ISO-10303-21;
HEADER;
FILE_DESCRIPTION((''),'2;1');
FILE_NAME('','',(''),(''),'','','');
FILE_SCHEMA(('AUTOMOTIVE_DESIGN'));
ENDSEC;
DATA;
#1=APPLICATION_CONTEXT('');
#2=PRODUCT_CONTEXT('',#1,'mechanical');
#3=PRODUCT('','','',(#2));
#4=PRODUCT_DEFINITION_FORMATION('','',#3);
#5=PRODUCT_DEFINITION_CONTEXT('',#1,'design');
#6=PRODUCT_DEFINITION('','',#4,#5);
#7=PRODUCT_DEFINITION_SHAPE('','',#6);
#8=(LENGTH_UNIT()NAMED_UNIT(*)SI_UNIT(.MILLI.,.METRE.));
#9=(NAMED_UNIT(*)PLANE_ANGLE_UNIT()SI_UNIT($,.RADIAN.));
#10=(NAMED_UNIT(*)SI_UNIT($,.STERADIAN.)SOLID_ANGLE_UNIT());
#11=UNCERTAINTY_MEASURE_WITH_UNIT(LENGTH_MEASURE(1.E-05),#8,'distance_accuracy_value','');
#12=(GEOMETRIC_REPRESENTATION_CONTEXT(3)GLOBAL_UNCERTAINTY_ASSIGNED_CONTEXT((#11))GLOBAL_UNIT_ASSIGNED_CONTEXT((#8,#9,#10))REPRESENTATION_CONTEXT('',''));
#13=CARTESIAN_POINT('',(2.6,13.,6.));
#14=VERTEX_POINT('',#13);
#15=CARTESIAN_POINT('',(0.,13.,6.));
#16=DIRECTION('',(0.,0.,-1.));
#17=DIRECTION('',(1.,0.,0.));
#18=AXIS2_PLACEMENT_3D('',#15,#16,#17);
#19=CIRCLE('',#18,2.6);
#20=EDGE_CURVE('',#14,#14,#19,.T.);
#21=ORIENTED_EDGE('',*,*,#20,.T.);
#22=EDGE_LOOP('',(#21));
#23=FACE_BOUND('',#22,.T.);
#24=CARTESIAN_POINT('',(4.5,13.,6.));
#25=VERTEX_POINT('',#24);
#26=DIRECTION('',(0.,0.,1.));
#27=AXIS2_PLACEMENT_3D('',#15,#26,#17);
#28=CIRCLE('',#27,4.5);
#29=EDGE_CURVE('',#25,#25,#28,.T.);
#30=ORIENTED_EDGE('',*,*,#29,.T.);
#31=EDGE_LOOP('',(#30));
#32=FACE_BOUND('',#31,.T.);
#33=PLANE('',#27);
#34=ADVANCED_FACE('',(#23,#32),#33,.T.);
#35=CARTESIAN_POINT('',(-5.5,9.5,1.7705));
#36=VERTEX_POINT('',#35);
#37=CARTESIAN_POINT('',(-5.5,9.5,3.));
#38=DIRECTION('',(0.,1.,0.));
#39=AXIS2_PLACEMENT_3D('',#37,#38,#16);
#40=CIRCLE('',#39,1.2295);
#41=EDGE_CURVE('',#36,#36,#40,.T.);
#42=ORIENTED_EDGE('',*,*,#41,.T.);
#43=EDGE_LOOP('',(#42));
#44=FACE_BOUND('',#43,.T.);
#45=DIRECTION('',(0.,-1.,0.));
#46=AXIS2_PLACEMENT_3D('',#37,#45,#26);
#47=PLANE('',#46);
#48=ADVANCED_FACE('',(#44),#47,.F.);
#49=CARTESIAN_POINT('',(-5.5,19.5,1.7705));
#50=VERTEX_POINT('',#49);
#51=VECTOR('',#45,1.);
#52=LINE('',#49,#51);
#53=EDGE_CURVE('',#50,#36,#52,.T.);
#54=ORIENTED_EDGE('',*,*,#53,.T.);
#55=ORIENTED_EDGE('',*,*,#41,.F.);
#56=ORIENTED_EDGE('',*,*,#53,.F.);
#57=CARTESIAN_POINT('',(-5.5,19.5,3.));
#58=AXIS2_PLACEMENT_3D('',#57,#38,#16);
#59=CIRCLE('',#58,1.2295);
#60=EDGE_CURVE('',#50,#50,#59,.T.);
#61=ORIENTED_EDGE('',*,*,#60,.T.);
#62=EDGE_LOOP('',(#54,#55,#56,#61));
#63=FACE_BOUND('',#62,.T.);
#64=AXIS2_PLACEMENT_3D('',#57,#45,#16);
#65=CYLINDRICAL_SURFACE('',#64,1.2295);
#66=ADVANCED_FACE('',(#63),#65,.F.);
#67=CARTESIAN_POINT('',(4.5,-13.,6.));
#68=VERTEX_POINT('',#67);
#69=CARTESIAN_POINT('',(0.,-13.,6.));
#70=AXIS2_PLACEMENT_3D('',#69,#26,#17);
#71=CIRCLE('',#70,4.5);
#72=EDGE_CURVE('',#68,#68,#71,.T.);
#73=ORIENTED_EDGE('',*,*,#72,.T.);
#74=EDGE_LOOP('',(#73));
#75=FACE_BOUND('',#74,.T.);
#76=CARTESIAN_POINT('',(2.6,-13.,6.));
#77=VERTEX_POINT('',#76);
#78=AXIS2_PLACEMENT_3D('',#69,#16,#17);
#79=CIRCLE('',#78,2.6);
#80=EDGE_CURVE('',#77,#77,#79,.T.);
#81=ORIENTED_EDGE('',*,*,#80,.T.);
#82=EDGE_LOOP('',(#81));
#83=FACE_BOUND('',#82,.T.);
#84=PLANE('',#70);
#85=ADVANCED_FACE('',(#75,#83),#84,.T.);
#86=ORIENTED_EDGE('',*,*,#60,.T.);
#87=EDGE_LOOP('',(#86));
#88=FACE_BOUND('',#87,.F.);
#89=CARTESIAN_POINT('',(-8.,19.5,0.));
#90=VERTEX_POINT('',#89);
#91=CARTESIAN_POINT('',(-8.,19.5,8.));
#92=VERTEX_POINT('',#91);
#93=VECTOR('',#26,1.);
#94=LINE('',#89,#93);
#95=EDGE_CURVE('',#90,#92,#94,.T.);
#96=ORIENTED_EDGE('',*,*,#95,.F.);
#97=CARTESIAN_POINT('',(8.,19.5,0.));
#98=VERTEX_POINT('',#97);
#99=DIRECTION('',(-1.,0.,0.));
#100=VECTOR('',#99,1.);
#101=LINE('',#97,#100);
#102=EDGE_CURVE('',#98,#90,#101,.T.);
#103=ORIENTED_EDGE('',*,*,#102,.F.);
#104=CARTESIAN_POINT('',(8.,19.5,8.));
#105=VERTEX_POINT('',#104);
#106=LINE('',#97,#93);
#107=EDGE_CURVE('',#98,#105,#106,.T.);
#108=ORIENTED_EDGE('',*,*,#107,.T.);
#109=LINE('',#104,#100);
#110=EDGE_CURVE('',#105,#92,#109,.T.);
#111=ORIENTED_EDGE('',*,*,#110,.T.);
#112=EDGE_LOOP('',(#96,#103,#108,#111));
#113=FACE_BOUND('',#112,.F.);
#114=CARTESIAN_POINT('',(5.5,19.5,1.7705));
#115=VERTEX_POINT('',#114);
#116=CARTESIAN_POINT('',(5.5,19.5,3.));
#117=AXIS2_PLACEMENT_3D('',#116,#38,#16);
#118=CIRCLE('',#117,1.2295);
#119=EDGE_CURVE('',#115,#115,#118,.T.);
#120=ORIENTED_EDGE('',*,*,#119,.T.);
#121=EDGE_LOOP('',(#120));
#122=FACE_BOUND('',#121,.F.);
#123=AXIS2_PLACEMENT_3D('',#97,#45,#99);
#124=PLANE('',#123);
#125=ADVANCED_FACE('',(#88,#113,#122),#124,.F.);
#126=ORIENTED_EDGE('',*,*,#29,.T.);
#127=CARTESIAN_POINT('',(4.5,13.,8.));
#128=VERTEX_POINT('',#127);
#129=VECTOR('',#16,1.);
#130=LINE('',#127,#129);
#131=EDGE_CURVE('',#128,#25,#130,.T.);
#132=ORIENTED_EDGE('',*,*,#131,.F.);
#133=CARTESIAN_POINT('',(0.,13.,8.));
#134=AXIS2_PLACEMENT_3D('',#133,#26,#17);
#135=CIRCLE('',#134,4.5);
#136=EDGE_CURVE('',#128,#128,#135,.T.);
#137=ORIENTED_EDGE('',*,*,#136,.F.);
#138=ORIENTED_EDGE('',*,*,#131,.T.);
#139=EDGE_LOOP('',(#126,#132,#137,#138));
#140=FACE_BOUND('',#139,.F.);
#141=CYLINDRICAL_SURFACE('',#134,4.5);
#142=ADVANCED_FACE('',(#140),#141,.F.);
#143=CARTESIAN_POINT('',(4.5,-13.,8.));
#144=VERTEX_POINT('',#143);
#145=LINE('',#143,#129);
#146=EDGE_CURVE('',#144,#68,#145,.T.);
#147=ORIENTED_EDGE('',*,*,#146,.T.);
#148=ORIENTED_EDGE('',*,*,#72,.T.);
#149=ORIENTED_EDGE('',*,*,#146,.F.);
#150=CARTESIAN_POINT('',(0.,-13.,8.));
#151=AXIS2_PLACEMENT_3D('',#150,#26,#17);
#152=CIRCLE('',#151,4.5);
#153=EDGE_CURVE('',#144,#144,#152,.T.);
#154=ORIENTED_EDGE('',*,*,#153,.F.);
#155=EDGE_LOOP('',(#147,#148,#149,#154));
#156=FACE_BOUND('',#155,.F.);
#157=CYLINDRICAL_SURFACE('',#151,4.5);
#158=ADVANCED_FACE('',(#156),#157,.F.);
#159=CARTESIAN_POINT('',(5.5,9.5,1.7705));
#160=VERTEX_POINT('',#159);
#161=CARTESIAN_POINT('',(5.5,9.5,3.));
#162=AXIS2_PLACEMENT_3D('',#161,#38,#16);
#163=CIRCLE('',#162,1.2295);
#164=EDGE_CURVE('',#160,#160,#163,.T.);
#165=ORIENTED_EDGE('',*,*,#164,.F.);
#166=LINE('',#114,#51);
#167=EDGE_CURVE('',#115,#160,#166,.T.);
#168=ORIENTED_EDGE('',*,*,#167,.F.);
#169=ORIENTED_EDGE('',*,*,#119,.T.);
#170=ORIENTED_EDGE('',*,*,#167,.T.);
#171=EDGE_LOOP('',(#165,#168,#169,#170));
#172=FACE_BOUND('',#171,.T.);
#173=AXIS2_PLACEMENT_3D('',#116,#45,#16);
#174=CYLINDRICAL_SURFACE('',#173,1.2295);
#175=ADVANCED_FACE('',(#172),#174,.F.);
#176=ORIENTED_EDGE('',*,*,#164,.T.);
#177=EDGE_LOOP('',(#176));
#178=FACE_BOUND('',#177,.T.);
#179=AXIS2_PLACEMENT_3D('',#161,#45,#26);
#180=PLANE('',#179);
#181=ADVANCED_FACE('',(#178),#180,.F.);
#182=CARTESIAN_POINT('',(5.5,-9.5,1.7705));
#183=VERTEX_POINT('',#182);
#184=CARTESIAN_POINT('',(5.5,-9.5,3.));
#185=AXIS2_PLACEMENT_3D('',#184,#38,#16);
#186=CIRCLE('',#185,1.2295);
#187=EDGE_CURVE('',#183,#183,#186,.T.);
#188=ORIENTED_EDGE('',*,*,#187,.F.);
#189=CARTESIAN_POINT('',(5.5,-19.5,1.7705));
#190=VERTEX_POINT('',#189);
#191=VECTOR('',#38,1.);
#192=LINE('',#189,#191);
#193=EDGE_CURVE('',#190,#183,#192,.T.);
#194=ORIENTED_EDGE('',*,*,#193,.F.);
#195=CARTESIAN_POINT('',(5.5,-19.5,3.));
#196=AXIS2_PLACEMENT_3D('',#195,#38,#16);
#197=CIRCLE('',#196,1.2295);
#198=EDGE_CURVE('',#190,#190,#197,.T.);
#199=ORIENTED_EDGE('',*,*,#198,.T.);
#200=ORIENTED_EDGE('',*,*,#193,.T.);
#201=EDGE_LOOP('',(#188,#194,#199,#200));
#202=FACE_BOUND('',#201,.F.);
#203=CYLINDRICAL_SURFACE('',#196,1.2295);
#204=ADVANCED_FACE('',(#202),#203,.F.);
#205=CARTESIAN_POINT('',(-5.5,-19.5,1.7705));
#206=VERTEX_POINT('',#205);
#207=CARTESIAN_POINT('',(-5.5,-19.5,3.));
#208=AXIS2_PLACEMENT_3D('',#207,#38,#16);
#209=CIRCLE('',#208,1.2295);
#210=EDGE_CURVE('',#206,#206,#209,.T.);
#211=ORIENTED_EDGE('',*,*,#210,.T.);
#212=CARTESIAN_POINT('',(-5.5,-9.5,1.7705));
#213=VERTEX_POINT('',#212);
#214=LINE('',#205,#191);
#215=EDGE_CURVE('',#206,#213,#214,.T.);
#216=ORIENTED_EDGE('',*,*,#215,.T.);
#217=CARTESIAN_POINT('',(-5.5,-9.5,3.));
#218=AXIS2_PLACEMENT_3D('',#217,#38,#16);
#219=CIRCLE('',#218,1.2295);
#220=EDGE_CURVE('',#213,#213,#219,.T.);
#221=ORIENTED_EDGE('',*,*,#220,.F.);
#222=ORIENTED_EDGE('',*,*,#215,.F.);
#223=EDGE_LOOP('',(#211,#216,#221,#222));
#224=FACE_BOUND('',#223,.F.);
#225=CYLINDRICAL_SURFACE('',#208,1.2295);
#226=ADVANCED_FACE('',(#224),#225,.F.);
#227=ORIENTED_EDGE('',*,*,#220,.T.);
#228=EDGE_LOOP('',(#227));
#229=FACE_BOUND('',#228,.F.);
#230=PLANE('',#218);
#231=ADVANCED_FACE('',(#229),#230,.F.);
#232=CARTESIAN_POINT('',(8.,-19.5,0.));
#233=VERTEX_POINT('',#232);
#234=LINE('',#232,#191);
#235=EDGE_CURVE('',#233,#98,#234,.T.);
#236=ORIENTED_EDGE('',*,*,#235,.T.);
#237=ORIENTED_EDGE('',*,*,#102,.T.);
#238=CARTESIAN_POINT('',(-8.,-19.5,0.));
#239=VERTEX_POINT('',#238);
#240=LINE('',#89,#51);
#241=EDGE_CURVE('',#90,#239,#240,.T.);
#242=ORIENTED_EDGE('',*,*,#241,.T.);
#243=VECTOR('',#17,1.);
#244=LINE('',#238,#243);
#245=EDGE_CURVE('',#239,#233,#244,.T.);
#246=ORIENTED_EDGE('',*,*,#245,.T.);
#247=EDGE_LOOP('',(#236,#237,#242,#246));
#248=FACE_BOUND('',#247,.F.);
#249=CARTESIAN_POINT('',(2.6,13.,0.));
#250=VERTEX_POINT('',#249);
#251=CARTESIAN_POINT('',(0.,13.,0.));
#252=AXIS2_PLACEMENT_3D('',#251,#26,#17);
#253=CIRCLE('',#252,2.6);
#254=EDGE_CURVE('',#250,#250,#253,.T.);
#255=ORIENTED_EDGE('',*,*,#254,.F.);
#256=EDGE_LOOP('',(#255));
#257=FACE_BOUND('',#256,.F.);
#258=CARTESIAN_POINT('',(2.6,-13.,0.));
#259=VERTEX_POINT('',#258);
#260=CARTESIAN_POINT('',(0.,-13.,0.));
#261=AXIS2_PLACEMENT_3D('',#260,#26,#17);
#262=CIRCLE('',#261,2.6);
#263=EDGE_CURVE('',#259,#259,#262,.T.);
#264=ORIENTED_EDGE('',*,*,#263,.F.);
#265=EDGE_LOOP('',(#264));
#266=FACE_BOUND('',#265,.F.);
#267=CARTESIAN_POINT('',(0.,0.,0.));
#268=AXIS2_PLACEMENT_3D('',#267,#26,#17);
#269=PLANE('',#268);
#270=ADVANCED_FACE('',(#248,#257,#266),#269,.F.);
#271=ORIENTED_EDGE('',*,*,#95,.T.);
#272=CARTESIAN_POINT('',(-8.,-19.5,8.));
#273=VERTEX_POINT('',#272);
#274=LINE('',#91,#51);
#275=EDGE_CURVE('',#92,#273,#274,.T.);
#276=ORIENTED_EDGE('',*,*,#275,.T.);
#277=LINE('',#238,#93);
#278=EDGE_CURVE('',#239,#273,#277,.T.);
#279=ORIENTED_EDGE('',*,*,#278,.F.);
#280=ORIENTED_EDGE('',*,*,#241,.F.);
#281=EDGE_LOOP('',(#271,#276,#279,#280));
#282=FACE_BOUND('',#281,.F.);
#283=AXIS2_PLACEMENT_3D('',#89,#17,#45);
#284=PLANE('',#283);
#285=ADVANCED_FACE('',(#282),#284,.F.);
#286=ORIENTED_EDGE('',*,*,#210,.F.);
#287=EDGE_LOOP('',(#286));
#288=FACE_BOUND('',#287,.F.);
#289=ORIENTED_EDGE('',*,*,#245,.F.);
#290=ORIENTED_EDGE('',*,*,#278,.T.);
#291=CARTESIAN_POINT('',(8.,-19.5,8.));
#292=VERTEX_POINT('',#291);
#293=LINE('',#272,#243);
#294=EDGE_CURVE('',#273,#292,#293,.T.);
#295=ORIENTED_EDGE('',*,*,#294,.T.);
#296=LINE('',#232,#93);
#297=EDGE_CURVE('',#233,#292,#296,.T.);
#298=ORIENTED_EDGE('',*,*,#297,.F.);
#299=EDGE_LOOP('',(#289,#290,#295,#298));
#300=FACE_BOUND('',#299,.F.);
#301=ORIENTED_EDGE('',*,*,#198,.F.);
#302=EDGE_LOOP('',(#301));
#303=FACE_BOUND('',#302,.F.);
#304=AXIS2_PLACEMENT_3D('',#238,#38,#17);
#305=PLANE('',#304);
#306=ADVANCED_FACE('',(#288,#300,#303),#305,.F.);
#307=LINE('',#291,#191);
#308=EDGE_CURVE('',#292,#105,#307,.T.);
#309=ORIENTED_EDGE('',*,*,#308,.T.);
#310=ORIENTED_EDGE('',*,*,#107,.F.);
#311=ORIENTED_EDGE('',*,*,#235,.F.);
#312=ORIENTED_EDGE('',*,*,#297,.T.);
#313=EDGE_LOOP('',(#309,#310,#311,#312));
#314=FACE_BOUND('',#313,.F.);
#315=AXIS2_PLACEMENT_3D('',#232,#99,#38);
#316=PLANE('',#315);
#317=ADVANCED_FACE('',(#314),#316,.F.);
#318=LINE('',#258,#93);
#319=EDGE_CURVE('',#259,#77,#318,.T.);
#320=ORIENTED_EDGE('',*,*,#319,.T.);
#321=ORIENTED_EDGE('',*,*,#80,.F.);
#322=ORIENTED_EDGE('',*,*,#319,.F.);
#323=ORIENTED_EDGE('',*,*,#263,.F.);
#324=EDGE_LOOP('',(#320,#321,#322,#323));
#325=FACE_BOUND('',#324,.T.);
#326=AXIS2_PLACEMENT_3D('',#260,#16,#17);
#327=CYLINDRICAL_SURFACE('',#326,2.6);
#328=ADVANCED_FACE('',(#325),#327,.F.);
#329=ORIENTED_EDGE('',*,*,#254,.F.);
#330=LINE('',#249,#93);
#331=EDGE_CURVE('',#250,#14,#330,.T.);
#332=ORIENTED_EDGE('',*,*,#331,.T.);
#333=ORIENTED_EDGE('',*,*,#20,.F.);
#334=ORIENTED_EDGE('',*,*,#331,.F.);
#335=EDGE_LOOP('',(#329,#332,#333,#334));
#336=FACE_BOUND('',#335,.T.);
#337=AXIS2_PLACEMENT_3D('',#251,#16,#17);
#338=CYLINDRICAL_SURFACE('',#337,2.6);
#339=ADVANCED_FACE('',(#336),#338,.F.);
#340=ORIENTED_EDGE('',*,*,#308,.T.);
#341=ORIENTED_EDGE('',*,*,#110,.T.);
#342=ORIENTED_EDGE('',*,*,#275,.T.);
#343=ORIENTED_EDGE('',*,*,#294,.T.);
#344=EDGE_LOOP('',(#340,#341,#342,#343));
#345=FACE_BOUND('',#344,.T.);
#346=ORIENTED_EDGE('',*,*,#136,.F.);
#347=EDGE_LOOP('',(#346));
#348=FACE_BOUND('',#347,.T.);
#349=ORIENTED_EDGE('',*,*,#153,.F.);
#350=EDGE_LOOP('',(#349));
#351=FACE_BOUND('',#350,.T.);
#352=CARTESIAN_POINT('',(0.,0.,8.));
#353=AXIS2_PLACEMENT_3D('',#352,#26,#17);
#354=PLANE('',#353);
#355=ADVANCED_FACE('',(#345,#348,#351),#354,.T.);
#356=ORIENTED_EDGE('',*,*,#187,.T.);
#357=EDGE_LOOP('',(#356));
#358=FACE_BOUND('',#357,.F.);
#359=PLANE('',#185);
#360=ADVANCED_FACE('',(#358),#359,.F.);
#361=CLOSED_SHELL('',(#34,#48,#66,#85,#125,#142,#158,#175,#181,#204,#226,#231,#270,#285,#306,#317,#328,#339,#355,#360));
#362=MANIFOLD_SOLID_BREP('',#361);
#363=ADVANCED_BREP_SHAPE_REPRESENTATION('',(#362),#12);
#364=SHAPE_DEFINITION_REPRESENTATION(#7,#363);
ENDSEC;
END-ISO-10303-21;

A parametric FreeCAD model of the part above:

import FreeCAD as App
import Part
import Sketcher


def add_polygon(sketch, points):
    """Adds a closed chain of lines whose ends are joined by coincident constraints."""
    first, n = sketch.GeometryCount, len(points)
    for a, b in zip(points, points[1:] + points[:1]):
        sketch.addGeometry(Part.LineSegment(App.Vector(*a, 0), App.Vector(*b, 0)), False)
    for i in range(n):
        sketch.addConstraint(Sketcher.Constraint("Coincident", first + i, 2, first + (i + 1) % n, 1))

doc = App.newDocument("Part")
body = doc.addObject("PartDesign::Body", "Body")

sketch1 = body.newObject("Sketcher::SketchObject", "Sketch")
sketch1.AttachmentSupport = (doc.getObject("XY_Plane"), [""])
sketch1.MapMode = "FlatFace"
add_polygon(sketch1, [(-8, 19.5), (-8, -19.5), (8, -19.5), (8, 19.5)])
sketch1.addGeometry(Part.Circle(App.Vector(0, -13, 0), App.Vector(0, 0, 1), 2.6), False)
sketch1.addGeometry(Part.Circle(App.Vector(0, 13, 0), App.Vector(0, 0, 1), 2.6), False)
sketch1.addConstraint([
    Sketcher.Constraint("Vertical", 0),
    Sketcher.Constraint("Horizontal", 1),
    Sketcher.Constraint("Vertical", 2),
    Sketcher.Constraint("Horizontal", 3),
    Sketcher.Constraint("Equal", 4, 5),
    Sketcher.Constraint("Symmetric", 4, 3, 5, 3, -1, 1),
    Sketcher.Constraint("Symmetric", 0, 2, 2, 2, -1, 1),
    Sketcher.Constraint("PointOnObject", 4, 3, -2),
    Sketcher.Constraint("Diameter", 4, 5.2),
    Sketcher.Constraint("DistanceX", 1, 1, 1, 2, 16.0),
    Sketcher.Constraint("DistanceY", 0, 2, 0, 1, 39.0),
    Sketcher.Constraint("DistanceY", 4, 3, -1, 1, 13.0),
])
pad1 = body.newObject("PartDesign::Pad", "Pad")
pad1.Profile = sketch1
pad1.Length = 8

sketch2 = body.newObject("Sketcher::SketchObject", "Sketch001")
sketch2.AttachmentSupport = (doc.getObject("XY_Plane"), [""])
sketch2.MapMode = "FlatFace"
sketch2.AttachmentOffset = App.Placement(App.Vector(0, 0, 8), App.Rotation())
sketch2.addGeometry([
    Part.Circle(App.Vector(0, 13, 0), App.Vector(0, 0, 1), 4.5),
    Part.Circle(App.Vector(0, -13, 0), App.Vector(0, 0, 1), 4.5),
], False)
sketch2.addConstraint([
    Sketcher.Constraint("Equal", 0, 1),
    Sketcher.Constraint("Symmetric", 0, 3, 1, 3, -1, 1),
    Sketcher.Constraint("PointOnObject", 0, 3, -2),
    Sketcher.Constraint("Diameter", 0, 9.0),
    Sketcher.Constraint("DistanceY", -1, 1, 0, 3, 13.0),
])
pocket1 = body.newObject("PartDesign::Pocket", "Pocket")
pocket1.Profile = sketch2
pocket1.Length = 2

sketch3 = body.newObject("Sketcher::SketchObject", "Sketch002")
sketch3.AttachmentSupport = (doc.getObject("XZ_Plane"), [""])
sketch3.MapMode = "FlatFace"
sketch3.AttachmentOffset = App.Placement(App.Vector(0, 0, 19.5), App.Rotation())
sketch3.addGeometry(Part.Circle(App.Vector(-5.5, 3, 0), App.Vector(0, 0, 1), 1.2295), False)
sketch3.addConstraint([
    Sketcher.Constraint("Diameter", 0, 2.459),
    Sketcher.Constraint("DistanceY", -1, 1, 0, 3, 3.0),
    Sketcher.Constraint("DistanceX", 0, 3, -1, 1, 5.5),
])
doc.recompute()
hole = body.newObject("PartDesign::Hole", "Hole")
hole.Profile = sketch3
hole.ThreadType = "None"
hole.Diameter = 2.459
hole.DepthType = "Dimension"
hole.Depth = 10
hole.DrillPoint = "Flat"

sketch4 = body.newObject("Sketcher::SketchObject", "Sketch003")
sketch4.AttachmentSupport = (doc.getObject("XZ_Plane"), [""])
sketch4.MapMode = "FlatFace"
sketch4.AttachmentOffset = App.Placement(App.Vector(0, 0, 19.5), App.Rotation())
sketch4.addGeometry(Part.Circle(App.Vector(5.5, 3, 0), App.Vector(0, 0, 1), 1.2295), False)
sketch4.addConstraint([
    Sketcher.Constraint("Diameter", 0, 2.459),
    Sketcher.Constraint("DistanceY", -1, 1, 0, 3, 3.0),
    Sketcher.Constraint("DistanceX", -1, 1, 0, 3, 5.5),
])
doc.recompute()
hole2 = body.newObject("PartDesign::Hole", "Hole001")
hole2.Profile = sketch4
hole2.ThreadType = "None"
hole2.Diameter = 2.459
hole2.DepthType = "Dimension"
hole2.Depth = 10
hole2.DrillPoint = "Flat"
doc.recompute()

mirrored = body.newObject("PartDesign::Mirrored", "Mirrored")
mirrored.Originals = [hole, hole2]
mirrored.MirrorPlane = (doc.getObject("XZ_Plane"), [""])
body.Tip = mirrored

doc.recompute()
